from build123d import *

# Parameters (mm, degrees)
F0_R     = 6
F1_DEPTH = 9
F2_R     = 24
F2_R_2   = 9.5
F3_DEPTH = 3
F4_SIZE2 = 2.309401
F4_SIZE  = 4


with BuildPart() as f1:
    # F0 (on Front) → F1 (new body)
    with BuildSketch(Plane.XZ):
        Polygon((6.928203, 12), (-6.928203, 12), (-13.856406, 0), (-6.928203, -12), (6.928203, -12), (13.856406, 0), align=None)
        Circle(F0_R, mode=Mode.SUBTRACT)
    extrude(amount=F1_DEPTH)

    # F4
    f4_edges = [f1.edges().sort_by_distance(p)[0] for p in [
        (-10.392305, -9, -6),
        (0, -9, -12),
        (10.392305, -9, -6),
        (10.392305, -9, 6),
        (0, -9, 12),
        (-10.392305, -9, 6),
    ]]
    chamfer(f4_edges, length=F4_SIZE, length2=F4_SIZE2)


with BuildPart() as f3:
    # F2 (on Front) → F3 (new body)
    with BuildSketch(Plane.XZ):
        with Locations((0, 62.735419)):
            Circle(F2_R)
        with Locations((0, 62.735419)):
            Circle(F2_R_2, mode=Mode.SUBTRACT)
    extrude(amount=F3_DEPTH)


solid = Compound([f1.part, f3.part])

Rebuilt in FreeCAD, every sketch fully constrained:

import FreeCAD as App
import Part
import Sketcher
from FreeCAD import Vector
Q = App.Units.Quantity


def edges_at(feature, points):
    """Names of the edges that pass closest to the given points."""
    edges = feature.Shape.Edges
    near = lambda p: min(range(len(edges)), key=lambda i: edges[i].distToShape(Part.Vertex(*p))[0])
    return sorted({f"Edge{near(p) + 1}" for p in points})


def add_polygon(sketch, points):
    """Adds a closed chain of lines whose ends are joined by coincident constraints."""
    first, n = sketch.GeometryCount, len(points)
    for a, b in zip(points, points[1:] + points[:1]):
        sketch.addGeometry(Part.LineSegment(App.Vector(*a, 0), App.Vector(*b, 0)), False)
    for i in range(n):
        sketch.addConstraint(Sketcher.Constraint("Coincident", first + i, 2, first + (i + 1) % n, 1))

doc = App.newDocument("Part")
body = doc.addObject("PartDesign::Body", "Body")

# Sketch on XZ plane
sketch1 = doc.addObject("Sketcher::SketchObject", "Sketch")
body.addObject(sketch1)
sketch1.AttachmentSupport = (doc.XZ_Plane, [""])
sketch1.MapMode = "FlatFace"
add_polygon(sketch1, [(7, 12), (-7, 12), (-14, 0), (-7, -12), (7, -12), (14, 0)])  # lines 0-5
sketch1.addGeometry(Part.Circle(Vector(0, 0, 0), Vector(0, 0, 1), 6), False)  # 6
sketch1.addConstraint(Sketcher.Constraint("Horizontal", 0))
sketch1.addConstraint(Sketcher.Constraint("Horizontal", 3))
sketch1.addConstraint(Sketcher.Constraint("Coincident", 6, 3, -1, 1))
sketch1.addConstraint(Sketcher.Constraint("Symmetric", 0, 2, 3, 2, -1, 1))
sketch1.addConstraint(Sketcher.Constraint("Symmetric", 1, 2, 4, 2, -1, 1))
sketch1.addConstraint(Sketcher.Constraint("PointOnObject", 1, 2, -1))
sketch1.addConstraint(Sketcher.Constraint("Parallel", 2, 5))
sketch1.addConstraint(Sketcher.Constraint("Vertical", 0, 2, 2, 2))
sketch1.addConstraint(Sketcher.Constraint("Diameter", 6, 12.0))
sketch1.addConstraint(Sketcher.Constraint("Angle", 1, Q("-119.999999 deg")))
sketch1.addConstraint(Sketcher.Constraint("DistanceY", -1, 1, 0, 2, 12.0))
sketch1.addConstraint(Sketcher.Constraint("DistanceX", 0, 2, 0, 1, 13.856406))
pad1 = doc.addObject("PartDesign::Pad", "Pad")
body.addObject(pad1)
pad1.Profile = sketch1
pad1.Length = 9
doc.recompute()

chamfer = doc.addObject("PartDesign::Chamfer", "Chamfer")
body.addObject(chamfer)
chamfer.Base = (pad1, edges_at(pad1, [
    (-10.392, -9, -6),
    (0, -9, -12),
    (10.392, -9, -6),
    (10.392, -9, 6),
    (0, -9, 12),
    (-10.392, -9, 6),
]))
chamfer.ChamferType = "Two distances"
chamfer.Size = 4
chamfer.Size2 = 2.309401
body2 = doc.addObject("PartDesign::Body", "Body001")

# Sketch on XZ plane
sketch2 = doc.addObject("Sketcher::SketchObject", "Sketch001")
body2.addObject(sketch2)
sketch2.AttachmentSupport = (doc.getObject("XZ_Plane001"), [""])
sketch2.MapMode = "FlatFace"
sketch2.addGeometry(Part.Circle(Vector(0, 63, 0), Vector(0, 0, 1), 24), False)
sketch2.addGeometry(Part.Circle(Vector(0, 63, 0), Vector(0, 0, 1), 10), False)
sketch2.addConstraint(Sketcher.Constraint("Coincident", 1, 3, 0, 3))
sketch2.addConstraint(Sketcher.Constraint("PointOnObject", 0, 3, -2))
sketch2.addConstraint(Sketcher.Constraint("Diameter", 0, 48.0))
sketch2.addConstraint(Sketcher.Constraint("Diameter", 1, 19.0))
sketch2.addConstraint(Sketcher.Constraint("DistanceY", -1, 1, 0, 3, 62.735419))
pad2 = doc.addObject("PartDesign::Pad", "Pad001")
body2.addObject(pad2)
pad2.Profile = sketch2
pad2.Length = 3

doc.recompute()
